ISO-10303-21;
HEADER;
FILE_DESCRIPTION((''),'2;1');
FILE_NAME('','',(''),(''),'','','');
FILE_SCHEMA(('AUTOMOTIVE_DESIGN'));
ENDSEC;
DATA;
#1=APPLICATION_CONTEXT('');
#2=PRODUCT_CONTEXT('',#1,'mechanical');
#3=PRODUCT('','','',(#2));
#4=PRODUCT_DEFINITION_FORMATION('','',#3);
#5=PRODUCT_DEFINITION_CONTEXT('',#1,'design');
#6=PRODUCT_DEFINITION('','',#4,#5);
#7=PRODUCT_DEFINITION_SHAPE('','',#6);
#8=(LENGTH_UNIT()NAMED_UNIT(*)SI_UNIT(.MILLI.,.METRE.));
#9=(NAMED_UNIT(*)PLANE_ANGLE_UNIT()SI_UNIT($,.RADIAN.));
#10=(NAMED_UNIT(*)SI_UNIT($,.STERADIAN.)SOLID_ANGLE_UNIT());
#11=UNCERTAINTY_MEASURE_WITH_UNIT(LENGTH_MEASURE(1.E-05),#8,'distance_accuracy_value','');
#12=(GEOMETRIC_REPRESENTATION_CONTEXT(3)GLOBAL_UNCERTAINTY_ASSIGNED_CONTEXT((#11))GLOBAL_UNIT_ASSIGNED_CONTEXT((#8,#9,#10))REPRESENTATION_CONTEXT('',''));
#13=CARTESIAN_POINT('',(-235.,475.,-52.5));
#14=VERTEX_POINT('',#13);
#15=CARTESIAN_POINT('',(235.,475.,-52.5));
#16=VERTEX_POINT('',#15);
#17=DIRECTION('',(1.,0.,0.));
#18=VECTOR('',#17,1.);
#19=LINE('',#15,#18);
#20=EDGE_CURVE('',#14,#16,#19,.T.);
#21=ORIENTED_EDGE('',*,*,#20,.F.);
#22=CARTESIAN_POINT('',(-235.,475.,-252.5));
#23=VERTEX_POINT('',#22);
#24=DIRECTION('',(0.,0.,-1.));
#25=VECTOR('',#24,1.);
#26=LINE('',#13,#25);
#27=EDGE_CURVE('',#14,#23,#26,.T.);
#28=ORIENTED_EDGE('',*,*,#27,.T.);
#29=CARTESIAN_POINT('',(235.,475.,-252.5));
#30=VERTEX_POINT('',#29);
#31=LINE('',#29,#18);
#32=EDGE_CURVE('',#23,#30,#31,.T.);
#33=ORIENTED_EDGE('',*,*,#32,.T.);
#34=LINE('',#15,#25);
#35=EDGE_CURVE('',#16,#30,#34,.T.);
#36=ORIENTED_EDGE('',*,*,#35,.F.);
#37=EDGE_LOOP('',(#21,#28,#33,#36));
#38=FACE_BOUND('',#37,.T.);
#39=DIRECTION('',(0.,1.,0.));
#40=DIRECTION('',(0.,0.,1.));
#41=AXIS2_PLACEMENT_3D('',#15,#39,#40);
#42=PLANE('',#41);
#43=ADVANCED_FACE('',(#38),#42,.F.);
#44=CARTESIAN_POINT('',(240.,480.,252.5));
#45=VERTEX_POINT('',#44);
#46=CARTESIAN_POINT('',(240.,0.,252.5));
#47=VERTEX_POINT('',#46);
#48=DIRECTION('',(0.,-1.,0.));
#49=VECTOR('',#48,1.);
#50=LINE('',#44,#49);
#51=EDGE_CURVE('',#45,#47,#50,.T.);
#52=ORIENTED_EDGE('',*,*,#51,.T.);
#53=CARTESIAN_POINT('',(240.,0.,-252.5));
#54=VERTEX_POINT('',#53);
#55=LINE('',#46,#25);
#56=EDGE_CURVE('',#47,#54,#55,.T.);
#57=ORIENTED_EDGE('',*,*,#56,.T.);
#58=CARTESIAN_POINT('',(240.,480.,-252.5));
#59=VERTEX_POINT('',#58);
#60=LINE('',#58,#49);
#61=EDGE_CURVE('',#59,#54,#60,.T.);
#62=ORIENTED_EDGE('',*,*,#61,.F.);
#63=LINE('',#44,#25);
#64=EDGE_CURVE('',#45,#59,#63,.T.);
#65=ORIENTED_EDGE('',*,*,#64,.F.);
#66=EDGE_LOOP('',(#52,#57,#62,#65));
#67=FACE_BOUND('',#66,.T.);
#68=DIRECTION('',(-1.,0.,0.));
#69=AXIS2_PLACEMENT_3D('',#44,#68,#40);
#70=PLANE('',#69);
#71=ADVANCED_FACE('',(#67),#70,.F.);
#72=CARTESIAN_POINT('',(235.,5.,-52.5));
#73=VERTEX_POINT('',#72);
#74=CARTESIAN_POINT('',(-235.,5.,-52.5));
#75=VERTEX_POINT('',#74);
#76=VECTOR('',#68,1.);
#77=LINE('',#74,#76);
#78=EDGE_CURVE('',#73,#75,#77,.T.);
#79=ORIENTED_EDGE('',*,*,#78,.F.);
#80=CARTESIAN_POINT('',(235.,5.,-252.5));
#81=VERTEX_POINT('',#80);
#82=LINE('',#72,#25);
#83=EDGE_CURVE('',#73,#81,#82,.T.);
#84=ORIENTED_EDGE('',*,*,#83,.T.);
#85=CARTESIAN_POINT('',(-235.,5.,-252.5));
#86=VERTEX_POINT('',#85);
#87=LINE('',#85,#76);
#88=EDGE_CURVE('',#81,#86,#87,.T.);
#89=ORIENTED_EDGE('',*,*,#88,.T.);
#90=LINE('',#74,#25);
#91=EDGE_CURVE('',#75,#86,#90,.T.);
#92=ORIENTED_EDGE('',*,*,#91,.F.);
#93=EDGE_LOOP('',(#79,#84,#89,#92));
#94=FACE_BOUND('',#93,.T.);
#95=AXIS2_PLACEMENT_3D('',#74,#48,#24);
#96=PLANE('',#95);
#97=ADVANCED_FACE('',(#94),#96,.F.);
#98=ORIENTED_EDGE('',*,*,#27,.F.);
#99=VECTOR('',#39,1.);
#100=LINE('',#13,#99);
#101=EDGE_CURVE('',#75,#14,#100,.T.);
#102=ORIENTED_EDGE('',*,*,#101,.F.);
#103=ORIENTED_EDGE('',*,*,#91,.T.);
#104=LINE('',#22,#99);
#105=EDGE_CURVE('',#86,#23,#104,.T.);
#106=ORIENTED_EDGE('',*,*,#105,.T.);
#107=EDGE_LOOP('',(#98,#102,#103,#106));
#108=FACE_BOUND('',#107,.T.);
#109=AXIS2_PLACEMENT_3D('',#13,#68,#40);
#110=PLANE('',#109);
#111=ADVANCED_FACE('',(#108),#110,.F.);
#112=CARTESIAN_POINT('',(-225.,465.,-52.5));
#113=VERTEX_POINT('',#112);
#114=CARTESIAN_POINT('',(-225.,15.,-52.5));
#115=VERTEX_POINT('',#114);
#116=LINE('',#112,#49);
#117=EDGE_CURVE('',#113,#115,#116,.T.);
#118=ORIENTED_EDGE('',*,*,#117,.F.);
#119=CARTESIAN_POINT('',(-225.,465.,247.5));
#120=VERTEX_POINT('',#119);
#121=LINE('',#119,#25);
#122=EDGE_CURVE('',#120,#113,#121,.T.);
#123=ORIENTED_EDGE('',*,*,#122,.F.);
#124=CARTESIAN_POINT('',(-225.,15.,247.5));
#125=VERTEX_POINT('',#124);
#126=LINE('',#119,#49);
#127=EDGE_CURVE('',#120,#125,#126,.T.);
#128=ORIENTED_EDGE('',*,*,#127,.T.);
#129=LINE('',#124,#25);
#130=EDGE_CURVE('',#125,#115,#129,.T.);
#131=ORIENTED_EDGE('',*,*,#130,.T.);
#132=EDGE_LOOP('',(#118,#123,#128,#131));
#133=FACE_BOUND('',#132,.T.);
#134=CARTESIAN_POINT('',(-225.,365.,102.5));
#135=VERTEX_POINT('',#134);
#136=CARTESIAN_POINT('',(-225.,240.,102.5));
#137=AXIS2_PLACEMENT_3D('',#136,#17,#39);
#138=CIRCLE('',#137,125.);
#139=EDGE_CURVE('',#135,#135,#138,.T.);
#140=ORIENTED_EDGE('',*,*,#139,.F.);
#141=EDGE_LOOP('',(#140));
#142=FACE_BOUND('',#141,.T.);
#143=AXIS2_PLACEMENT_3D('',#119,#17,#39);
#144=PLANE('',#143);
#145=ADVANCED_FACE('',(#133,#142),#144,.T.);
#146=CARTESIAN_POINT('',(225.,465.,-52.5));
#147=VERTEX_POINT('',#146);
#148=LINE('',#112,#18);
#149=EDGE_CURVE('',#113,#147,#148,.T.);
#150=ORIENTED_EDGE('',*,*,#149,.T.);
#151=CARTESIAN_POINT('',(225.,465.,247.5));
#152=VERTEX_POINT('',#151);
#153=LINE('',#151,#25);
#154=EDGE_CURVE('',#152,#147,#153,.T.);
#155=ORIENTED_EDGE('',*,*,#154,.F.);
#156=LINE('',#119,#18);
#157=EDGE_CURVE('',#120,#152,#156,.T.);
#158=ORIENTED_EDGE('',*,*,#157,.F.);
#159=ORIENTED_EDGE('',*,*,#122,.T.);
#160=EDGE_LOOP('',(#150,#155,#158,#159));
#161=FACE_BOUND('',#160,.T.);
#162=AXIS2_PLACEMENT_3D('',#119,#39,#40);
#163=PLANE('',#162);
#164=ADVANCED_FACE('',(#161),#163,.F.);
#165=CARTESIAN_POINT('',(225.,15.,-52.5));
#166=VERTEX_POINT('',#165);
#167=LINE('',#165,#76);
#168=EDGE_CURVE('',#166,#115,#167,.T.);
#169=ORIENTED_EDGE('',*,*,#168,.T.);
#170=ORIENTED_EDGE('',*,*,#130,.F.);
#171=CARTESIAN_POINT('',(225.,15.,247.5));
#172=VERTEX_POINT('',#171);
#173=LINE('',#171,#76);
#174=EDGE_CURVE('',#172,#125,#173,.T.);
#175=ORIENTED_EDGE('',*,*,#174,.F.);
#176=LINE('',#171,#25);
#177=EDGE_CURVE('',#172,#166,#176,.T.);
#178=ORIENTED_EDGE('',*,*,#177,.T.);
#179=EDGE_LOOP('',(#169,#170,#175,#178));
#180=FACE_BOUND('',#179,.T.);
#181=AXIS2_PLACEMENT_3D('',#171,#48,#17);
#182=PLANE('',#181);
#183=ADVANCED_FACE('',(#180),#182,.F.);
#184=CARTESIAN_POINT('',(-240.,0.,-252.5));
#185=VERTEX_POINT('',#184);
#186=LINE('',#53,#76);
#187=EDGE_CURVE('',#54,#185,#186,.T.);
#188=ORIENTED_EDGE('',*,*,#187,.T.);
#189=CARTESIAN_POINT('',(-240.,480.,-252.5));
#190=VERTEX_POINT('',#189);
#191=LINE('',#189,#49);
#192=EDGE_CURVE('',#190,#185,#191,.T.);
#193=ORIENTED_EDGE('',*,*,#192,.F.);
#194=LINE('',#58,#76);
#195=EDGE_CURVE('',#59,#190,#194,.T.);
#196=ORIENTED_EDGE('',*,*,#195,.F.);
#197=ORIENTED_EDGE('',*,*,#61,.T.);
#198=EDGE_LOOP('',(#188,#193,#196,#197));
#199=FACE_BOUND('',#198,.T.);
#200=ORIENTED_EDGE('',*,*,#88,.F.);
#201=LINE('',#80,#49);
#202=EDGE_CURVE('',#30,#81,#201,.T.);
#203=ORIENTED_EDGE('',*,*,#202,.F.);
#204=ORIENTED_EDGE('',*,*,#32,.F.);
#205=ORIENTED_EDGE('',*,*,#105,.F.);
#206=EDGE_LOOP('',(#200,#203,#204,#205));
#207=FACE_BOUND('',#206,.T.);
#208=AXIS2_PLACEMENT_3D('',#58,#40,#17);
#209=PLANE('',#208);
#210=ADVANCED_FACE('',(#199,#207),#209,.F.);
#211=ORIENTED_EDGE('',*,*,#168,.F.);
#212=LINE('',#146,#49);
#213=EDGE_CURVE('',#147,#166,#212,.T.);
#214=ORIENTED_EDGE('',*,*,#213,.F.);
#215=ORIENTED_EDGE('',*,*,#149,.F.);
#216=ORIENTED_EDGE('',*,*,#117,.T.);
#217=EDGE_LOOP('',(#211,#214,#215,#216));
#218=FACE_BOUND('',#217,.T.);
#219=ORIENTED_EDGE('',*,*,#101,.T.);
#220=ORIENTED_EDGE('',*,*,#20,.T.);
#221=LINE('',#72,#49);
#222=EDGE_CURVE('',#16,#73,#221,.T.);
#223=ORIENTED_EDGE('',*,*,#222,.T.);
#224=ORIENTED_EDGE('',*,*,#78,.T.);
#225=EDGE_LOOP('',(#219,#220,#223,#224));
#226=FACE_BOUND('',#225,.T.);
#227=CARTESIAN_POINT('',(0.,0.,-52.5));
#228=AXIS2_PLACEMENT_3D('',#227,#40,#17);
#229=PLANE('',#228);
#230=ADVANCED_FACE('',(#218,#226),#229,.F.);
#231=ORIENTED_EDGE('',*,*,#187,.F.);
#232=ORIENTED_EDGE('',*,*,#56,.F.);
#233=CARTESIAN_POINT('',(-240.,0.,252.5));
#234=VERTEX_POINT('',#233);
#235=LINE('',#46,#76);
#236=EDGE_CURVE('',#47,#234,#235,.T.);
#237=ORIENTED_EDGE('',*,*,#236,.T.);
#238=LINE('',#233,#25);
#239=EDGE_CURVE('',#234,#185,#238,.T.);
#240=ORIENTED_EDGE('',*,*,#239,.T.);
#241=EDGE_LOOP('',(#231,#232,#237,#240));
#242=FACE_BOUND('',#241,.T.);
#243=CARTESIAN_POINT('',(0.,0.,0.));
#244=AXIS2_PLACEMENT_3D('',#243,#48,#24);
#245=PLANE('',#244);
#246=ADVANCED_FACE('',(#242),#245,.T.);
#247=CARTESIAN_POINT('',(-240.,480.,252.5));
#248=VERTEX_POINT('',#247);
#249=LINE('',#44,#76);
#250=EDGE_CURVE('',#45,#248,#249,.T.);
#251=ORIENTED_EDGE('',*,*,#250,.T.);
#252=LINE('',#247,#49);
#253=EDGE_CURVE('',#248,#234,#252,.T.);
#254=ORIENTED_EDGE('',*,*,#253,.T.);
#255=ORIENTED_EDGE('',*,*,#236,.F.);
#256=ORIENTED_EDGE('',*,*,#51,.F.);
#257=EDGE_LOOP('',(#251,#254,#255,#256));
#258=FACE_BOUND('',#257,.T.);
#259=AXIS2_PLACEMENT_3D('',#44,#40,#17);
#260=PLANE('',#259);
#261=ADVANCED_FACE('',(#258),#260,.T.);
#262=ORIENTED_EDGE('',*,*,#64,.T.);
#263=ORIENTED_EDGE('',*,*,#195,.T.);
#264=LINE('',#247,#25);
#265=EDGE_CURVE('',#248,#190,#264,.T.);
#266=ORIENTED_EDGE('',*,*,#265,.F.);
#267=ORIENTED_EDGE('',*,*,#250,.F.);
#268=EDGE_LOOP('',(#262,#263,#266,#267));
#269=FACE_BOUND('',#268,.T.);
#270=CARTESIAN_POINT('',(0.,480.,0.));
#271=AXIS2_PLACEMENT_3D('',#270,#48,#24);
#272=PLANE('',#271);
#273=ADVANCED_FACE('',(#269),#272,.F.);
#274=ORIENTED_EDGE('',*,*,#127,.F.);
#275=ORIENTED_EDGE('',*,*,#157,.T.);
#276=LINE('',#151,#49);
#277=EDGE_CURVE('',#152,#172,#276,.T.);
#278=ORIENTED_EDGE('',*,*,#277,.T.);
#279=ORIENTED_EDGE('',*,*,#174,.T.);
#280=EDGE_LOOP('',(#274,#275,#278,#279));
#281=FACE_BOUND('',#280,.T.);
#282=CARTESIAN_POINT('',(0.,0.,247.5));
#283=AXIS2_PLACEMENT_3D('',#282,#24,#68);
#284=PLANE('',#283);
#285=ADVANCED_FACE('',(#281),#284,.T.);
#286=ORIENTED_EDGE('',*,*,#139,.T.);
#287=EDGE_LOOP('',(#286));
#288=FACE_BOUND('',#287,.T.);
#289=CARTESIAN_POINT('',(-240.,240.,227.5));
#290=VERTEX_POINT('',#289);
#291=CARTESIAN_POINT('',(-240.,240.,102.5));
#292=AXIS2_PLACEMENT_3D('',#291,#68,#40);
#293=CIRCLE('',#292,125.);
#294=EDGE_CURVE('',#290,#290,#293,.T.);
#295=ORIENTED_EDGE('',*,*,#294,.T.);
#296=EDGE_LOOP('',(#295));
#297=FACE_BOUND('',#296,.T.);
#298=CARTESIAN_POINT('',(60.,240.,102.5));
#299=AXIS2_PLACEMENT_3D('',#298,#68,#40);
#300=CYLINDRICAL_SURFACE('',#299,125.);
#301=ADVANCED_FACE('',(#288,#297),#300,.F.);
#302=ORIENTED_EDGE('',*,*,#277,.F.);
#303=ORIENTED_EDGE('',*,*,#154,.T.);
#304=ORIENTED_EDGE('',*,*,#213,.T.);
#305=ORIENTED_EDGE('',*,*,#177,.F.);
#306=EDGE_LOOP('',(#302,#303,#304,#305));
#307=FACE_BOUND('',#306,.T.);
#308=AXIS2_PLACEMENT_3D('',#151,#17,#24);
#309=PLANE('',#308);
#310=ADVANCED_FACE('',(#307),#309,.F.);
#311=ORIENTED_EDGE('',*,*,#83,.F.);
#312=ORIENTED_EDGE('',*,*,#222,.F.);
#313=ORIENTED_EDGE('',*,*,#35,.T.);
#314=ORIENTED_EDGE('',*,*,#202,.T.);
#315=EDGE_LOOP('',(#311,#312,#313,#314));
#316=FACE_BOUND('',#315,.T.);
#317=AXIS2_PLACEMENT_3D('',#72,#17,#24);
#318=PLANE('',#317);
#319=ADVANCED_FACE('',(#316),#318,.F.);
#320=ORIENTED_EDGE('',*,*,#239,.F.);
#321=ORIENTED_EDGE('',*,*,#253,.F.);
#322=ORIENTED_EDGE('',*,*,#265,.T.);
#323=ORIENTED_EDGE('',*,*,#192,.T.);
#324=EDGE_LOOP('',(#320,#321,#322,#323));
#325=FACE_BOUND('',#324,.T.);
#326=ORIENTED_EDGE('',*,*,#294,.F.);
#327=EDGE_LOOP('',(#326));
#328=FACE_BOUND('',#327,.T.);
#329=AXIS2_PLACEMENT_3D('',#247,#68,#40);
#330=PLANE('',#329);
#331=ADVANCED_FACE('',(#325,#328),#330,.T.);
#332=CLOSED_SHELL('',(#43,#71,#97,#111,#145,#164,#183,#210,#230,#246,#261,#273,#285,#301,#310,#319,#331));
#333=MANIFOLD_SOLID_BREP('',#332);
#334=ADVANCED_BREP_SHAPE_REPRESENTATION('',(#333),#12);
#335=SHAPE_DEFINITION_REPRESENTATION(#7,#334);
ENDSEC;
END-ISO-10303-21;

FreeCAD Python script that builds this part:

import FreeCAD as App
import Part
import Sketcher
Q = App.Units.Quantity

doc = App.newDocument("Part")
params = doc.addObject("Spreadsheet::Sheet", "Params")
for row, (alias, value) in enumerate([
    ("sketch1_width", "480 mm"),
    ("sketch1_height", "505 mm"),
    ("pad1_length", "480 mm"),
    ("sketch2_width", "470 mm"),
    ("pocket1_length", "200 mm"),
    ("sketch3_width", "450 mm"),
    ("pocket2_length", "300 mm"),
    ("sketch4_diameter", "250 mm"),
    ("pocket3_length", "300 mm"),
], start=1):
    params.set(f"A{row}", alias)
    params.set(f"B{row}", "=" + value)
    params.setAlias(f"B{row}", alias)

body = doc.addObject("PartDesign::Body", "Body")

# Sketch on XZ plane
sketch1 = body.newObject("Sketcher::SketchObject", "Sketch")
sketch1.AttachmentSupport = (doc.getObject("XZ_Plane"), [""])
sketch1.MapMode = "FlatFace"
sketch1.addGeometry(Part.LineSegment(App.Vector(-240, -252, 0), App.Vector(-240, 252, 0)), False)
sketch1.addGeometry(Part.LineSegment(App.Vector(-240, 252, 0), App.Vector(240, 252, 0)), False)
sketch1.addGeometry(Part.LineSegment(App.Vector(240, 252, 0), App.Vector(240, -252, 0)), False)
sketch1.addGeometry(Part.LineSegment(App.Vector(240, -252, 0), App.Vector(-240, -252, 0)), False)
sketch1.addConstraint(Sketcher.Constraint("Coincident", 0, 2, 1, 1))
sketch1.addConstraint(Sketcher.Constraint("Coincident", 1, 2, 2, 1))
sketch1.addConstraint(Sketcher.Constraint("Coincident", 2, 2, 3, 1))
sketch1.addConstraint(Sketcher.Constraint("Coincident", 3, 2, 0, 1))
sketch1.addConstraint(Sketcher.Constraint("Vertical", 0))
sketch1.addConstraint(Sketcher.Constraint("Horizontal", 1))
sketch1.addConstraint(Sketcher.Constraint("Vertical", 2))
sketch1.addConstraint(Sketcher.Constraint("Horizontal", 3))
sketch1.addConstraint(Sketcher.Constraint("Symmetric", 0, 2, 2, 2, -1, 1))
sketch1.addConstraint(Sketcher.Constraint("DistanceX", 1, 1, 1, 2, Q("480 mm")))
sketch1.addConstraint(Sketcher.Constraint("DistanceY", 0, 1, 0, 2, Q("505 mm")))
sketch1.setExpression("Constraints[9]", "Params.sketch1_width")
sketch1.setExpression("Constraints[10]", "Params.sketch1_height")
pad1 = body.newObject("PartDesign::Pad", "Pad")
pad1.Profile = sketch1
pad1.setExpression("Length", "Params.pad1_length")
pad1.Reversed = True

# Sketch on XY plane
sketch2 = body.newObject("Sketcher::SketchObject", "Sketch001")
sketch2.AttachmentSupport = (doc.getObject("XY_Plane"), [""])
sketch2.MapMode = "FlatFace"
sketch2.AttachmentOffset = App.Placement(App.Vector(0, 0, -252.5), App.Rotation())
sketch2.addGeometry(Part.LineSegment(App.Vector(235, 475, 0), App.Vector(235, 5, 0)), False)
sketch2.addGeometry(Part.LineSegment(App.Vector(235, 5, 0), App.Vector(-235, 5, 0)), False)
sketch2.addGeometry(Part.LineSegment(App.Vector(-235, 5, 0), App.Vector(-235, 475, 0)), False)
sketch2.addGeometry(Part.LineSegment(App.Vector(-235, 475, 0), App.Vector(235, 475, 0)), False)
sketch2.addConstraint(Sketcher.Constraint("Coincident", 0, 2, 1, 1))
sketch2.addConstraint(Sketcher.Constraint("Coincident", 1, 2, 2, 1))
sketch2.addConstraint(Sketcher.Constraint("Coincident", 2, 2, 3, 1))
sketch2.addConstraint(Sketcher.Constraint("Coincident", 3, 2, 0, 1))
sketch2.addConstraint(Sketcher.Constraint("Vertical", 0))
sketch2.addConstraint(Sketcher.Constraint("Horizontal", 1))
sketch2.addConstraint(Sketcher.Constraint("Vertical", 2))
sketch2.addConstraint(Sketcher.Constraint("Horizontal", 3))
sketch2.addConstraint(Sketcher.Constraint("Equal", 3, 0))
sketch2.addConstraint(Sketcher.Constraint("DistanceX", 1, 2, 1, 1, Q("470 mm")))
sketch2.addConstraint(Sketcher.Constraint("DistanceX", -1, 1, 0, 2, Q("235 mm")))
sketch2.addConstraint(Sketcher.Constraint("DistanceY", -1, 1, 0, 2, Q("5 mm")))
sketch2.setExpression("Constraints[9]", "Params.sketch2_width")
pocket1 = body.newObject("PartDesign::Pocket", "Pocket")
pocket1.Profile = sketch2
pocket1.setExpression("Length", "Params.pocket1_length")
pocket1.Reversed = True

# Sketch on XY plane
sketch3 = body.newObject("Sketcher::SketchObject", "Sketch002")
sketch3.AttachmentSupport = (doc.getObject("XY_Plane"), [""])
sketch3.MapMode = "FlatFace"
sketch3.AttachmentOffset = App.Placement(App.Vector(0, 0, -52.5), App.Rotation())
sketch3.addGeometry(Part.LineSegment(App.Vector(225, 465, 0), App.Vector(225, 15, 0)), False)
sketch3.addGeometry(Part.LineSegment(App.Vector(225, 15, 0), App.Vector(-225, 15, 0)), False)
sketch3.addGeometry(Part.LineSegment(App.Vector(-225, 15, 0), App.Vector(-225, 465, 0)), False)
sketch3.addGeometry(Part.LineSegment(App.Vector(-225, 465, 0), App.Vector(225, 465, 0)), False)
sketch3.addConstraint(Sketcher.Constraint("Coincident", 0, 2, 1, 1))
sketch3.addConstraint(Sketcher.Constraint("Coincident", 1, 2, 2, 1))
sketch3.addConstraint(Sketcher.Constraint("Coincident", 2, 2, 3, 1))
sketch3.addConstraint(Sketcher.Constraint("Coincident", 3, 2, 0, 1))
sketch3.addConstraint(Sketcher.Constraint("Vertical", 0))
sketch3.addConstraint(Sketcher.Constraint("Horizontal", 1))
sketch3.addConstraint(Sketcher.Constraint("Vertical", 2))
sketch3.addConstraint(Sketcher.Constraint("Horizontal", 3))
sketch3.addConstraint(Sketcher.Constraint("Equal", 3, 0))
sketch3.addConstraint(Sketcher.Constraint("DistanceX", 1, 2, 1, 1, Q("450 mm")))
sketch3.addConstraint(Sketcher.Constraint("DistanceX", -1, 1, 0, 2, Q("225 mm")))
sketch3.addConstraint(Sketcher.Constraint("DistanceY", -1, 1, 0, 2, Q("15 mm")))
sketch3.setExpression("Constraints[9]", "Params.sketch3_width")
pocket2 = body.newObject("PartDesign::Pocket", "Pocket001")
pocket2.Profile = sketch3
pocket2.setExpression("Length", "Params.pocket2_length")
pocket2.Reversed = True

# Sketch on YZ plane
sketch4 = body.newObject("Sketcher::SketchObject", "Sketch003")
sketch4.AttachmentSupport = (doc.getObject("YZ_Plane"), [""])
sketch4.MapMode = "FlatFace"
sketch4.AttachmentOffset = App.Placement(App.Vector(0, 0, -240), App.Rotation())
sketch4.addGeometry(Part.Circle(App.Vector(240, 102, 0), App.Vector(0, 0, 1), 125), False)
sketch4.addConstraint(Sketcher.Constraint("Diameter", 0, Q("250 mm")))
sketch4.addConstraint(Sketcher.Constraint("DistanceX", -1, 1, 0, 3, Q("240 mm")))
sketch4.addConstraint(Sketcher.Constraint("DistanceY", -1, 1, 0, 3, Q("102.5 mm")))
sketch4.setExpression("Constraints[0]", "Params.sketch4_diameter")
pocket3 = body.newObject("PartDesign::Pocket", "Pocket002")
pocket3.Profile = sketch4
pocket3.setExpression("Length", "Params.pocket3_length")
pocket3.Reversed = True

doc.recompute()
